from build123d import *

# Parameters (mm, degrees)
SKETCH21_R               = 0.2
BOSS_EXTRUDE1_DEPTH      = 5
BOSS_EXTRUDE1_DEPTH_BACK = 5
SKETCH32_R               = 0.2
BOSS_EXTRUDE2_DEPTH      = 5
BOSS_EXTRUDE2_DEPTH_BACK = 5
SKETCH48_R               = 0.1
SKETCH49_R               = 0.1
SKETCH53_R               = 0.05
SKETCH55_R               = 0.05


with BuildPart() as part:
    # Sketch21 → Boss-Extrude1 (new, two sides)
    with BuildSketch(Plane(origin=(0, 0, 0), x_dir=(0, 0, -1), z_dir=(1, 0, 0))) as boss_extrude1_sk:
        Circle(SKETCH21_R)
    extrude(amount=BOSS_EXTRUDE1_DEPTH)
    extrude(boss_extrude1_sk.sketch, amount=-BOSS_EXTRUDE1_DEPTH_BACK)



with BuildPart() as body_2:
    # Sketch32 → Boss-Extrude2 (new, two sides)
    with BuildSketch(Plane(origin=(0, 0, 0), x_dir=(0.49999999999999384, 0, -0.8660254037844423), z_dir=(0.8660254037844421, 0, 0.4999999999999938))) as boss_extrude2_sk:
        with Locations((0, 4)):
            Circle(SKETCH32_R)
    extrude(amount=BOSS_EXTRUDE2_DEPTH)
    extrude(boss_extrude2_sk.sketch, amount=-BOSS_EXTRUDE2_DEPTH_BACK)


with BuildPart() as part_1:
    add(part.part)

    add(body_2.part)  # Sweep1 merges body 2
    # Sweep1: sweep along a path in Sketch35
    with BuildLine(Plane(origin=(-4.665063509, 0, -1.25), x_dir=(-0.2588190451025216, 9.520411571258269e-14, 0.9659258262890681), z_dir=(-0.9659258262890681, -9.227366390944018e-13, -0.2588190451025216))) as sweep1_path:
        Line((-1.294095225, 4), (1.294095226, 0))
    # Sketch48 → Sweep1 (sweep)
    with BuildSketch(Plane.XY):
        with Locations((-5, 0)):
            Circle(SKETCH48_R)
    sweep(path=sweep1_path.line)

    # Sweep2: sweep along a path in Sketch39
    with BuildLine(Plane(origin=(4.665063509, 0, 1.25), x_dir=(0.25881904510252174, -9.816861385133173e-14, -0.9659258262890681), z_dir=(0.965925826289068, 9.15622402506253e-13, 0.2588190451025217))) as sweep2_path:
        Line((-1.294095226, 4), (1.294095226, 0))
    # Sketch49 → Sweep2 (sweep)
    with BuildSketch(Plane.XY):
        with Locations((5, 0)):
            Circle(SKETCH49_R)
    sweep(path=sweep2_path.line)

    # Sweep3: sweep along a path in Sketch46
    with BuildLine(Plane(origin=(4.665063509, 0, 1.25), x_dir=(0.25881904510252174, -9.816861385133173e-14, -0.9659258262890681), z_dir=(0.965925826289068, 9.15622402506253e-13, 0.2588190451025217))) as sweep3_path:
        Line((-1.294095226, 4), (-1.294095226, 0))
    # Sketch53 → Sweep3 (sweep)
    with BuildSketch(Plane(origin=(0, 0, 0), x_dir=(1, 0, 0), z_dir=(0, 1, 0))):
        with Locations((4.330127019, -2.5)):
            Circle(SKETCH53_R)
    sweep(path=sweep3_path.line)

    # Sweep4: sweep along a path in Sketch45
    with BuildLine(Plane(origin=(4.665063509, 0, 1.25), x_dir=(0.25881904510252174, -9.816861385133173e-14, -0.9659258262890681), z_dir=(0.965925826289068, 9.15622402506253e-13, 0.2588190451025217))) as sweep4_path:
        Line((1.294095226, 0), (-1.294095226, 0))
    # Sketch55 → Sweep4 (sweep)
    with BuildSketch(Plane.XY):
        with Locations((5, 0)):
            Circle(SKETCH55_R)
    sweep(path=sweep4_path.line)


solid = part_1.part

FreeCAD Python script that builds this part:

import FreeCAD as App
import Part
import Sketcher

V = App.Vector

doc = App.newDocument("Part")
body = doc.addObject("PartDesign::Body", "Body")

# Sketch on YZ plane
sketch1 = body.newObject("Sketcher::SketchObject", "Sketch")
sketch1.AttachmentSupport = (doc.getObject("YZ_Plane"), [""])
sketch1.MapMode = "FlatFace"
sketch1.addGeometry(Part.Circle(V(0, 0, 0), V(0, 0, 1), 0.2), False)
sketch1.addConstraint(Sketcher.Constraint("Coincident", 0, 3, -1, 1))
sketch1.addConstraint(Sketcher.Constraint("Diameter", 0, 0.4))
pad1 = body.newObject("PartDesign::Pad", "Pad")
pad1.Profile = sketch1
pad1.Type = "TwoLengths"
pad1.Length = 5
pad1.Length2 = 5
body2 = doc.addObject("PartDesign::Body", "Body001")

# Sketch on an angled plane
sketch2 = body2.newObject("Sketcher::SketchObject", "Sketch001")
sketch2.Placement = App.Placement(V(0, 0, 0), App.Rotation(V(0.5, 0, -0.866025404), V(0, 1, 0), V(0.866025404, 0, 0.5), "ZXY"))
sketch2.addGeometry(Part.Circle(V(0, 4, 0), V(0, 0, 1), 0.2), False)
sketch2.addConstraint(Sketcher.Constraint("PointOnObject", 0, 3, -2))
sketch2.addConstraint(Sketcher.Constraint("Diameter", 0, 0.4))
sketch2.addConstraint(Sketcher.Constraint("DistanceY", -1, 1, 0, 3, 4.0))
pad2 = body2.newObject("PartDesign::Pad", "Pad001")
pad2.Profile = sketch2
pad2.Type = "TwoLengths"
pad2.Length = 5
pad2.Length2 = 5
body.AllowCompound = True
doc.recompute()

boolean = body.newObject("PartDesign::Boolean", "Boolean")
boolean.Type = "Fuse"
boolean.addObjects([body2])

# Sketch on XY plane
sketch3 = body.newObject("Sketcher::SketchObject", "Sketch002")
sketch3.AttachmentSupport = (doc.getObject("XY_Plane"), [""])
sketch3.MapMode = "FlatFace"
sketch3.addGeometry(Part.Circle(V(-5, 0, 0), V(0, 0, 1), 0.1), False)
sketch3.addConstraint(Sketcher.Constraint("PointOnObject", 0, 3, -1))
sketch3.addConstraint(Sketcher.Constraint("Diameter", 0, 0.2))
sketch3.addConstraint(Sketcher.Constraint("DistanceX", 0, 3, -1, 1, 5.0))

# Sketch on an angled plane
sketch4 = body.newObject("Sketcher::SketchObject", "Sketch003")
sketch4.Placement = App.Placement(V(0, 0, 0), App.Rotation(V(0, -0.847998304, 0.52999894), V(1, 0, 0), V(0, 0.52999894, 0.847998304), "ZXY"))
sketch4.addGeometry(Part.LineSegment(V(-4.716991, -4.330127, 0), V(0, -5, 0)), False)
sketch4.addConstraint(Sketcher.Constraint("PointOnObject", 0, 2, -2))
sketch4.addConstraint(Sketcher.Constraint("DistanceY", 0, 2, -1, 1, 5.0))
sketch4.addConstraint(Sketcher.Constraint("Distance", 0, 4.764318))
sketch4.addConstraint(Sketcher.Constraint("DistanceX", 0, 1, -1, 1, 4.716991))
doc.recompute()

additivepipe = body.newObject("PartDesign::AdditivePipe", "AdditivePipe")
additivepipe.Profile = sketch3
additivepipe.Spine = (sketch4, ["Edge1"])

# Sketch on XY plane
sketch5 = body.newObject("Sketcher::SketchObject", "Sketch004")
sketch5.AttachmentSupport = (doc.getObject("XY_Plane"), [""])
sketch5.MapMode = "FlatFace"
sketch5.addGeometry(Part.Circle(V(5, 0, 0), V(0, 0, 1), 0.1), False)
sketch5.addConstraint(Sketcher.Constraint("PointOnObject", 0, 3, -1))
sketch5.addConstraint(Sketcher.Constraint("Diameter", 0, 0.2))
sketch5.addConstraint(Sketcher.Constraint("DistanceX", -1, 1, 0, 3, 5.0))

# Sketch on an angled plane
sketch6 = body.newObject("Sketcher::SketchObject", "Sketch005")
sketch6.Placement = App.Placement(V(0, 0, 0), App.Rotation(V(0, -0.847998304, -0.52999894), V(1, 0, 0), V(0, -0.52999894, 0.847998304), "ZXY"))
sketch6.addGeometry(Part.LineSegment(V(-4.716991, 4.330127, 0), V(0, 5, 0)), False)
sketch6.addConstraint(Sketcher.Constraint("PointOnObject", 0, 2, -2))
sketch6.addConstraint(Sketcher.Constraint("DistanceY", -1, 1, 0, 2, 5.0))
sketch6.addConstraint(Sketcher.Constraint("Distance", 0, 4.764318))
sketch6.addConstraint(Sketcher.Constraint("DistanceX", 0, 1, -1, 1, 4.716991))
doc.recompute()

additivepipe2 = body.newObject("PartDesign::AdditivePipe", "AdditivePipe001")
additivepipe2.Profile = sketch5
additivepipe2.Spine = (sketch6, ["Edge1"])

# Sketch on XZ plane
sketch7 = body.newObject("Sketcher::SketchObject", "Sketch006")
sketch7.AttachmentSupport = (doc.getObject("XZ_Plane"), [""])
sketch7.MapMode = "FlatFace"
sketch7.addGeometry(Part.Circle(V(4.330127, 2.5, 0), V(0, 0, 1), 0.05), False)
sketch7.addConstraint(Sketcher.Constraint("Diameter", 0, 0.1))
sketch7.addConstraint(Sketcher.Constraint("DistanceY", -1, 1, 0, 3, 2.5))
sketch7.addConstraint(Sketcher.Constraint("DistanceX", -1, 1, 0, 3, 4.330127))

# Sketch on YZ plane
sketch8 = body.newObject("Sketcher::SketchObject", "Sketch007")
sketch8.AttachmentSupport = (doc.getObject("YZ_Plane"), [""])
sketch8.MapMode = "FlatFace"
sketch8.AttachmentOffset = App.Placement(V(0, 0, 4.330127), App.Rotation())
sketch8.addGeometry(Part.LineSegment(V(4, 2.5, 0), V(0, 2.5, 0)), False)
sketch8.addConstraint(Sketcher.Constraint("Horizontal", 0))
sketch8.addConstraint(Sketcher.Constraint("PointOnObject", 0, 2, -2))
sketch8.addConstraint(Sketcher.Constraint("DistanceX", 0, 2, 0, 1, 4.0))
sketch8.addConstraint(Sketcher.Constraint("DistanceY", -1, 1, 0, 1, 2.5))
doc.recompute()

additivepipe3 = body.newObject("PartDesign::AdditivePipe", "AdditivePipe002")
additivepipe3.Profile = sketch7
additivepipe3.Spine = (sketch8, ["Edge1"])

# Sketch on XY plane
sketch9 = body.newObject("Sketcher::SketchObject", "Sketch008")
sketch9.AttachmentSupport = (doc.getObject("XY_Plane"), [""])
sketch9.MapMode = "FlatFace"
sketch9.addGeometry(Part.Circle(V(5, 0, 0), V(0, 0, 1), 0.05), False)
sketch9.addConstraint(Sketcher.Constraint("PointOnObject", 0, 3, -1))
sketch9.addConstraint(Sketcher.Constraint("Diameter", 0, 0.1))
sketch9.addConstraint(Sketcher.Constraint("DistanceX", -1, 1, 0, 3, 5.0))

# Sketch on an angled plane
sketch10 = body.newObject("Sketcher::SketchObject", "Sketch009")
sketch10.Placement = App.Placement(V(4.665064, 0, 1.25), App.Rotation(V(-0.258819045, 0, 0.965925826), V(0, 0.999999999, 0), V(-0.965925826, 0, -0.258819045), "ZXY"))
sketch10.addGeometry(Part.LineSegment(V(-1.294095, 0, 0), V(1.294095, 0, 0)), False)
sketch10.addConstraint(Sketcher.Constraint("Horizontal", 0))
sketch10.addConstraint(Sketcher.Constraint("Symmetric", 0, 1, 0, 2, -1, 1))
sketch10.addConstraint(Sketcher.Constraint("DistanceX", 0, 1, 0, 2, 2.58819))
doc.recompute()

additivepipe4 = body.newObject("PartDesign::AdditivePipe", "AdditivePipe003")
additivepipe4.Profile = sketch9
additivepipe4.Spine = (sketch10, ["Edge1"])

doc.recompute()
